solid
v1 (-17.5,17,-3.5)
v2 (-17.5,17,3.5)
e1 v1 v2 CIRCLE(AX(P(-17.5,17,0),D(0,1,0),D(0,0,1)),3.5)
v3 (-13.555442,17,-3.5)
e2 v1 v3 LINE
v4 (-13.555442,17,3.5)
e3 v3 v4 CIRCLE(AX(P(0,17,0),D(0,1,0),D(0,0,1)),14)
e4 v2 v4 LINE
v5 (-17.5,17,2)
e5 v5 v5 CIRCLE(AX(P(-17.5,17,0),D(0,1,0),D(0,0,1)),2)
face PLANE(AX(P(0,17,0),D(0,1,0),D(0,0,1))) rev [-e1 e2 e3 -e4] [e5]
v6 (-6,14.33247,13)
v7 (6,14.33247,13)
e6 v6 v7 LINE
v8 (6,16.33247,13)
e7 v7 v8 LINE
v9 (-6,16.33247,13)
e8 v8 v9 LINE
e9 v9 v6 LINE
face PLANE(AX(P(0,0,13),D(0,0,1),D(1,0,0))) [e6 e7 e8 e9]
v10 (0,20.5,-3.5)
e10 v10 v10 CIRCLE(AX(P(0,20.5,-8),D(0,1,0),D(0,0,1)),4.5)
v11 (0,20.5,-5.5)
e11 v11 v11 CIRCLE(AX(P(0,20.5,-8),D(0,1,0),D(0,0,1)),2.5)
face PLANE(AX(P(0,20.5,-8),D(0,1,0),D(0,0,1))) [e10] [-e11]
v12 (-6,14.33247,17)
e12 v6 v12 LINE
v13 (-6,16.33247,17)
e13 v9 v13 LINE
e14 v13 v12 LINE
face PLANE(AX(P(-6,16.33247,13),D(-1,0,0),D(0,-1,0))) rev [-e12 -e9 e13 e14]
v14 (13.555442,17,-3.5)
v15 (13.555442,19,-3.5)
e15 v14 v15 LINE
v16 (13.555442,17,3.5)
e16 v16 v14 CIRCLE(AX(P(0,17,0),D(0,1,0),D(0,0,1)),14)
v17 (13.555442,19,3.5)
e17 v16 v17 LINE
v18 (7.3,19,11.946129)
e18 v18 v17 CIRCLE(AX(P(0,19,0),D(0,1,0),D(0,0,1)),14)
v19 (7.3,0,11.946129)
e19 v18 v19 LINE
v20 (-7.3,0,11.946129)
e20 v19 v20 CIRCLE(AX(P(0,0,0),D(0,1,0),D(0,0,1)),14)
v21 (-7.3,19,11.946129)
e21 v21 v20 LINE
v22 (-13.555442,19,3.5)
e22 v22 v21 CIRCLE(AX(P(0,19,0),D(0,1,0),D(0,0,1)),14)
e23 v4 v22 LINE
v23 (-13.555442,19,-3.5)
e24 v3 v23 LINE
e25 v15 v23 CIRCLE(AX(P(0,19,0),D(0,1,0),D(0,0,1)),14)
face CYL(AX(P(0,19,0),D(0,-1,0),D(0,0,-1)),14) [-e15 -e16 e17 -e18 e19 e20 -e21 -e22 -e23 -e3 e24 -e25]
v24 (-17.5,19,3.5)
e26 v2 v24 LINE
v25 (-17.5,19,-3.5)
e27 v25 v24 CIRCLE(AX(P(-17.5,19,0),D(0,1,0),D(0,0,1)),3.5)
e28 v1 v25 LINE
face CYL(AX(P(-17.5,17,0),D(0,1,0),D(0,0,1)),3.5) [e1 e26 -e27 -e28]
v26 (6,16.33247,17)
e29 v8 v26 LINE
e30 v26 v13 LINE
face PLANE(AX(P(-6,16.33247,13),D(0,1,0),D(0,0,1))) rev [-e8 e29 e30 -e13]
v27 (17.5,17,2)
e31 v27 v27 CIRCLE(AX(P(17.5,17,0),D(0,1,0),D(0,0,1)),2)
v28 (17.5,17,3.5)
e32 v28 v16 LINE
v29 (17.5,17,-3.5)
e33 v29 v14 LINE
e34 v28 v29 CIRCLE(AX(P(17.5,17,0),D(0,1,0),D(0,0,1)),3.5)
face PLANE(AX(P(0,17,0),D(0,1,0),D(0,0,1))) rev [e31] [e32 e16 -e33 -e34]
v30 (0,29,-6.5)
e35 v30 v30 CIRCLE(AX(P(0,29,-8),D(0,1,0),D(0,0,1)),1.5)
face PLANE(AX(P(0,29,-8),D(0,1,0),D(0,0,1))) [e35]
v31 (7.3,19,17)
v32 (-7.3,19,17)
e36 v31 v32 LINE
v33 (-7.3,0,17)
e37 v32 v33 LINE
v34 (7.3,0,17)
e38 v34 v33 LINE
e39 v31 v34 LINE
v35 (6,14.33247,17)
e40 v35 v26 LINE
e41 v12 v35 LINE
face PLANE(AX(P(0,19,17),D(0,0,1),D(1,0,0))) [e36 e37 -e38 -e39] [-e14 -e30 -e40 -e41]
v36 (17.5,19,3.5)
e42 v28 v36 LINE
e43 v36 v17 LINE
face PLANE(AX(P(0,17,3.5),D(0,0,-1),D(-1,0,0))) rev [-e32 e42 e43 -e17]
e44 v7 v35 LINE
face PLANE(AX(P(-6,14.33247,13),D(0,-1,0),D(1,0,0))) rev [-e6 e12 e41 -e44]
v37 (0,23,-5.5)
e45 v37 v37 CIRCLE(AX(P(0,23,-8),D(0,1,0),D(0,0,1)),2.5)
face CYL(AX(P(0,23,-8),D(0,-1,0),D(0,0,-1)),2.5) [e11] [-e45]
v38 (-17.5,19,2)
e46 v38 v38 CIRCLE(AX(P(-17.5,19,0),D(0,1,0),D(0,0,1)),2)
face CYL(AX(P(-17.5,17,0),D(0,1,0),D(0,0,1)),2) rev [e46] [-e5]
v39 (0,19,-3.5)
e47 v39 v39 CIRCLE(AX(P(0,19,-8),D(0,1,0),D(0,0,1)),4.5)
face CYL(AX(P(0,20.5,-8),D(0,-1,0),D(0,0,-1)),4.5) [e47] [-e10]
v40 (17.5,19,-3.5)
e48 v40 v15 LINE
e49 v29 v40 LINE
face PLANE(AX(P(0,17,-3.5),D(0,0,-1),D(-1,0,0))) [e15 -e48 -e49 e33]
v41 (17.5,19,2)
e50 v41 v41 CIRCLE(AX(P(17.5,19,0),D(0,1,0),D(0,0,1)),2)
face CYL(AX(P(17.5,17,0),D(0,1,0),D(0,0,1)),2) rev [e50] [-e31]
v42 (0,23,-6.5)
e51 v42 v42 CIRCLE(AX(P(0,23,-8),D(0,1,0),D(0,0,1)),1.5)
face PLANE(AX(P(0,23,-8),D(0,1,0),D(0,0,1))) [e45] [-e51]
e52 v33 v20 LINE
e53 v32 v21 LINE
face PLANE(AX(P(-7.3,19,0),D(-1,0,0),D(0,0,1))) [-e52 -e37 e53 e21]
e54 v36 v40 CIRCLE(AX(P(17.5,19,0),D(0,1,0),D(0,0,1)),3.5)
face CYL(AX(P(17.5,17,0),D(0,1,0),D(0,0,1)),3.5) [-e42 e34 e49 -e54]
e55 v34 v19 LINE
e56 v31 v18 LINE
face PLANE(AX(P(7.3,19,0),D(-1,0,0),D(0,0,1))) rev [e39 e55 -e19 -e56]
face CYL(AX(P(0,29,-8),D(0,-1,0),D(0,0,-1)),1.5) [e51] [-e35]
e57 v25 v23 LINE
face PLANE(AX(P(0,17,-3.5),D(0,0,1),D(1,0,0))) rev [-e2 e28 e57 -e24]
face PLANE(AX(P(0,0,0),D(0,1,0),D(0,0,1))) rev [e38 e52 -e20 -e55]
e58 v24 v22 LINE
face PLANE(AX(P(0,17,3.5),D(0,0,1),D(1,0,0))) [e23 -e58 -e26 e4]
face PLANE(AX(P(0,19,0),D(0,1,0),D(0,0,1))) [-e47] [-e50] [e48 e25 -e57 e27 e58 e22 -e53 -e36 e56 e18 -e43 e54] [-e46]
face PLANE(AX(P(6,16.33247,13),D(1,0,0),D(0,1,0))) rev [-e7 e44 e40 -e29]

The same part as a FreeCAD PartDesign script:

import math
import FreeCAD as App
import Part
import Sketcher
Q = App.Units.Quantity

doc = App.newDocument("Part")
body = doc.addObject("PartDesign::Body", "Body")

sketch1 = body.newObject("Sketcher::SketchObject", "Sketch")
sketch1.AttachmentSupport = (doc.getObject("XZ_Plane"), [""])
sketch1.MapMode = "FlatFace"
sketch1.addGeometry(Part.LineSegment(App.Vector(-7, 12, 0), App.Vector(-7, 17, 0)), False)
sketch1.addGeometry(Part.LineSegment(App.Vector(-7, 17, 0), App.Vector(7, 17, 0)), False)
sketch1.addGeometry(Part.LineSegment(App.Vector(7, 17, 0), App.Vector(7, 12, 0)), False)
sketch1.addGeometry(Part.ArcOfCircle(Part.Circle(App.Vector(0, 0, 0), App.Vector(0, 0, 1), 14), math.radians(121), math.radians(419)), False)
sketch1.addConstraint(Sketcher.Constraint("Coincident", 0, 2, 1, 1))
sketch1.addConstraint(Sketcher.Constraint("Coincident", 1, 2, 2, 1))
sketch1.addConstraint(Sketcher.Constraint("Coincident", 2, 2, 3, 2))
sketch1.addConstraint(Sketcher.Constraint("Coincident", 3, 1, 0, 1))
sketch1.addConstraint(Sketcher.Constraint("Vertical", 0))
sketch1.addConstraint(Sketcher.Constraint("Horizontal", 1))
sketch1.addConstraint(Sketcher.Constraint("Vertical", 2))
sketch1.addConstraint(Sketcher.Constraint("Coincident", 3, 3, -1, 1))
sketch1.addConstraint(Sketcher.Constraint("Horizontal", 2, 2, 3, 1))
sketch1.addConstraint(Sketcher.Constraint("Radius", 3, Q("14 mm")))
sketch1.addConstraint(Sketcher.Constraint("DistanceX", 1, 1, 1, 2, Q("14.6 mm")))
sketch1.addConstraint(Sketcher.Constraint("DistanceY", -1, 1, 0, 2, Q("17 mm")))
pad1 = body.newObject("PartDesign::Pad", "Pad")
pad1.Profile = sketch1
pad1.Length = 19
pad1.Reversed = True

sketch2 = body.newObject("Sketcher::SketchObject", "Sketch001")
sketch2.AttachmentSupport = (doc.getObject("XZ_Plane"), [""])
sketch2.MapMode = "FlatFace"
sketch2.AttachmentOffset = App.Placement(App.Vector(0, 0, -17), App.Rotation())
sketch2.addGeometry(Part.ArcOfCircle(Part.Circle(App.Vector(-17.5, 0, 0), App.Vector(0, 0, 1), 3.5), math.radians(90), math.radians(270)), False)
sketch2.addGeometry(Part.LineSegment(App.Vector(-17.5, 3.5, 0), App.Vector(-13.6, 3.5, 0)), False)
sketch2.addGeometry(Part.ArcOfCircle(Part.Circle(App.Vector(0, 0, 0), App.Vector(0, 0, 1), 14), math.radians(166), math.radians(194)), False)
sketch2.addGeometry(Part.LineSegment(App.Vector(-13.6, -3.5, 0), App.Vector(-17.5, -3.5, 0)), False)
sketch2.addGeometry(Part.Circle(App.Vector(-17.5, 0, 0), App.Vector(0, 0, 1), 2), False)
sketch2.addGeometry(Part.LineSegment(App.Vector(17.5, -3.5, 0), App.Vector(13.6, -3.5, 0)), False)
sketch2.addGeometry(Part.ArcOfCircle(Part.Circle(App.Vector(0, 0, 0), App.Vector(0, 0, 1), 14), math.radians(-14), math.radians(14)), False)
sketch2.addGeometry(Part.LineSegment(App.Vector(13.6, 3.5, 0), App.Vector(17.5, 3.5, 0)), False)
sketch2.addGeometry(Part.ArcOfCircle(Part.Circle(App.Vector(17.5, 0, 0), App.Vector(0, 0, 1), 3.5), math.radians(-90), math.radians(90)), False)
sketch2.addGeometry(Part.Circle(App.Vector(17.5, 0, 0), App.Vector(0, 0, 1), 2), False)
sketch2.addConstraint(Sketcher.Constraint("Tangent", 0, 1, 1, 1))
sketch2.addConstraint(Sketcher.Constraint("Coincident", 1, 2, 2, 1))
sketch2.addConstraint(Sketcher.Constraint("Coincident", 2, 2, 3, 1))
sketch2.addConstraint(Sketcher.Constraint("Tangent", 3, 2, 0, 2))
sketch2.addConstraint(Sketcher.Constraint("Coincident", 5, 2, 6, 1))
sketch2.addConstraint(Sketcher.Constraint("Coincident", 6, 2, 7, 1))
sketch2.addConstraint(Sketcher.Constraint("Tangent", 7, 2, 8, 2))
sketch2.addConstraint(Sketcher.Constraint("Tangent", 8, 1, 5, 1))
sketch2.addConstraint(Sketcher.Constraint("Horizontal", 1))
sketch2.addConstraint(Sketcher.Constraint("Horizontal", 3))
sketch2.addConstraint(Sketcher.Constraint("Horizontal", 5))
sketch2.addConstraint(Sketcher.Constraint("Horizontal", 7))
sketch2.addConstraint(Sketcher.Constraint("Coincident", 2, 3, -1, 1))
sketch2.addConstraint(Sketcher.Constraint("Coincident", 6, 3, -1, 1))
sketch2.addConstraint(Sketcher.Constraint("Coincident", 4, 3, 0, 3))
sketch2.addConstraint(Sketcher.Constraint("Coincident", 9, 3, 8, 3))
sketch2.addConstraint(Sketcher.Constraint("Equal", 2, 6))
sketch2.addConstraint(Sketcher.Constraint("Equal", 0, 8))
sketch2.addConstraint(Sketcher.Constraint("Equal", 4, 9))
sketch2.addConstraint(Sketcher.Constraint("Symmetric", 0, 3, 8, 3, -1, 1))
sketch2.addConstraint(Sketcher.Constraint("PointOnObject", 0, 3, -1))
sketch2.addConstraint(Sketcher.Constraint("Diameter", 4, Q("4 mm")))
sketch2.addConstraint(Sketcher.Constraint("Radius", 2, Q("14 mm")))
sketch2.addConstraint(Sketcher.Constraint("Radius", 0, Q("3.5 mm")))
sketch2.addConstraint(Sketcher.Constraint("DistanceX", 0, 3, 8, 3, Q("35 mm")))
pad2 = body.newObject("PartDesign::Pad", "Pad001")
pad2.Profile = sketch2
pad2.Length = 2
pad2.Reversed = True

sketch3 = body.newObject("Sketcher::SketchObject", "Sketch002")
sketch3.AttachmentSupport = (doc.getObject("XZ_Plane"), [""])
sketch3.MapMode = "FlatFace"
sketch3.AttachmentOffset = App.Placement(App.Vector(0, 0, -19), App.Rotation())
sketch3.addGeometry(Part.Circle(App.Vector(0, -8, 0), App.Vector(0, 0, 1), 4.5), False)
sketch3.addConstraint(Sketcher.Constraint("PointOnObject", 0, 3, -2))
sketch3.addConstraint(Sketcher.Constraint("Diameter", 0, Q("9 mm")))
sketch3.addConstraint(Sketcher.Constraint("DistanceY", 0, 3, -1, 1, Q("8 mm")))
pad3 = body.newObject("PartDesign::Pad", "Pad002")
pad3.Profile = sketch3
pad3.Length = 1.5
pad3.Reversed = True

sketch4 = body.newObject("Sketcher::SketchObject", "Sketch003")
sketch4.AttachmentSupport = (doc.getObject("XZ_Plane"), [""])
sketch4.MapMode = "FlatFace"
sketch4.AttachmentOffset = App.Placement(App.Vector(0, 0, -20.5), App.Rotation())
sketch4.addGeometry(Part.Circle(App.Vector(0, -8, 0), App.Vector(0, 0, 1), 2.5), False)
sketch4.addConstraint(Sketcher.Constraint("PointOnObject", 0, 3, -2))
sketch4.addConstraint(Sketcher.Constraint("Diameter", 0, Q("5 mm")))
sketch4.addConstraint(Sketcher.Constraint("DistanceY", 0, 3, -1, 1, Q("8 mm")))
pad4 = body.newObject("PartDesign::Pad", "Pad003")
pad4.Profile = sketch4
pad4.Length = 2.5
pad4.Reversed = True

sketch5 = body.newObject("Sketcher::SketchObject", "Sketch004")
sketch5.AttachmentSupport = (doc.getObject("XZ_Plane"), [""])
sketch5.MapMode = "FlatFace"
sketch5.AttachmentOffset = App.Placement(App.Vector(0, 0, -23), App.Rotation())
sketch5.addGeometry(Part.Circle(App.Vector(0, -8, 0), App.Vector(0, 0, 1), 1.5), False)
sketch5.addConstraint(Sketcher.Constraint("PointOnObject", 0, 3, -2))
sketch5.addConstraint(Sketcher.Constraint("Diameter", 0, Q("3 mm")))
sketch5.addConstraint(Sketcher.Constraint("DistanceY", 0, 3, -1, 1, Q("8 mm")))
pad5 = body.newObject("PartDesign::Pad", "Pad004")
pad5.Profile = sketch5
pad5.Length = 6
pad5.Reversed = True

sketch6 = body.newObject("Sketcher::SketchObject", "Sketch005")
sketch6.AttachmentSupport = (doc.getObject("XY_Plane"), [""])
sketch6.MapMode = "FlatFace"
sketch6.AttachmentOffset = App.Placement(App.Vector(0, 0, 17), App.Rotation())
sketch6.addGeometry(Part.LineSegment(App.Vector(-6, 16.3, 0), App.Vector(-6, 14.3, 0)), False)
sketch6.addGeometry(Part.LineSegment(App.Vector(-6, 14.3, 0), App.Vector(6, 14.3, 0)), False)
sketch6.addGeometry(Part.LineSegment(App.Vector(6, 14.3, 0), App.Vector(6, 16.3, 0)), False)
sketch6.addGeometry(Part.LineSegment(App.Vector(6, 16.3, 0), App.Vector(-6, 16.3, 0)), False)
sketch6.addConstraint(Sketcher.Constraint("Coincident", 0, 2, 1, 1))
sketch6.addConstraint(Sketcher.Constraint("Coincident", 1, 2, 2, 1))
sketch6.addConstraint(Sketcher.Constraint("Coincident", 2, 2, 3, 1))
sketch6.addConstraint(Sketcher.Constraint("Coincident", 3, 2, 0, 1))
sketch6.addConstraint(Sketcher.Constraint("Vertical", 0))
sketch6.addConstraint(Sketcher.Constraint("Horizontal", 1))
sketch6.addConstraint(Sketcher.Constraint("Vertical", 2))
sketch6.addConstraint(Sketcher.Constraint("Horizontal", 3))
sketch6.addConstraint(Sketcher.Constraint("DistanceX", 1, 1, 1, 2, Q("12 mm")))
sketch6.addConstraint(Sketcher.Constraint("DistanceY", 0, 2, 0, 1, Q("2 mm")))
sketch6.addConstraint(Sketcher.Constraint("DistanceX", 0, 2, -1, 1, Q("6 mm")))
sketch6.addConstraint(Sketcher.Constraint("DistanceY", -1, 1, 0, 2, Q("14.33247 mm")))
pocket1 = body.newObject("PartDesign::Pocket", "Pocket")
pocket1.Profile = sketch6
pocket1.Length = 4

doc.recompute()
